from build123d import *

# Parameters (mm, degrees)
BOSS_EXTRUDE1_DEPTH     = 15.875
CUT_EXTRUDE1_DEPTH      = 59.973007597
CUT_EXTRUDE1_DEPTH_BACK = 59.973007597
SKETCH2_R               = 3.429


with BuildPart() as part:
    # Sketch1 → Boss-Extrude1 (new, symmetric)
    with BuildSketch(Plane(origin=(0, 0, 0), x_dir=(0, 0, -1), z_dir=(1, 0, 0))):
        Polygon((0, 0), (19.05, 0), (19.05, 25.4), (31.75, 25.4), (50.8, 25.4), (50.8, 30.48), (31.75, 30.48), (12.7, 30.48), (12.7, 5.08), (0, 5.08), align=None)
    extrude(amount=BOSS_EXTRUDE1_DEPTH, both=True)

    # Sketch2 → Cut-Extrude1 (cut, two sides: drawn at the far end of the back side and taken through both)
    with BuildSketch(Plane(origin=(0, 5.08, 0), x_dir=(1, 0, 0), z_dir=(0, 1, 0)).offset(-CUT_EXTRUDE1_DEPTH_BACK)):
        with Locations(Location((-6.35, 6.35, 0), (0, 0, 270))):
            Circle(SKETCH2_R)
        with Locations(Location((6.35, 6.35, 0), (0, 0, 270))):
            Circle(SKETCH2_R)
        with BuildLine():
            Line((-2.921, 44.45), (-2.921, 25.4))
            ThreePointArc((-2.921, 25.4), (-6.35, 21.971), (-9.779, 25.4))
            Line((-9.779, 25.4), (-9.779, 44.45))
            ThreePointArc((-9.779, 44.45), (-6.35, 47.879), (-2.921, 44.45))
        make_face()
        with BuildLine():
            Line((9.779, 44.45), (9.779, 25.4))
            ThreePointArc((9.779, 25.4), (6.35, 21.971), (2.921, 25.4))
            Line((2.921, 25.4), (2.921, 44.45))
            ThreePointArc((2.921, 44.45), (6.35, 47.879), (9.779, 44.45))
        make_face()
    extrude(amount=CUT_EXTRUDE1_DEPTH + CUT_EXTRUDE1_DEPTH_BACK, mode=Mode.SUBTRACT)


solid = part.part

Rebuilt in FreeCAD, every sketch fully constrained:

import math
import FreeCAD as App
import Part
import Sketcher

V = App.Vector
Q = App.Units.Quantity


def add_polygon(sketch, points):
    """Adds a closed chain of lines whose ends are joined by coincident constraints."""
    first, n = sketch.GeometryCount, len(points)
    for a, b in zip(points, points[1:] + points[:1]):
        sketch.addGeometry(Part.LineSegment(App.Vector(*a, 0), App.Vector(*b, 0)), False)
    for i in range(n):
        sketch.addConstraint(Sketcher.Constraint("Coincident", first + i, 2, first + (i + 1) % n, 1))

doc = App.newDocument("Part")
body = doc.addObject("PartDesign::Body", "Body")

# Sketch on YZ plane
sketch1 = body.newObject("Sketcher::SketchObject", "Sketch")
sketch1.AttachmentSupport = (doc.getObject("YZ_Plane"), [""])
sketch1.MapMode = "FlatFace"
add_polygon(sketch1, [(0, 0), (0, -19), (25, -19), (25, -51), (30, -51), (30, -13), (5, -13), (5, 0)])  # lines 0-7
sketch1.addConstraint([
    Sketcher.Constraint("Vertical", 0),
    Sketcher.Constraint("Horizontal", 1),
    Sketcher.Constraint("Vertical", 2),
    Sketcher.Constraint("Horizontal", 3),
    Sketcher.Constraint("Vertical", 4),
    Sketcher.Constraint("Horizontal", 5),
    Sketcher.Constraint("Vertical", 6),
    Sketcher.Constraint("Horizontal", 7),
    Sketcher.Constraint("Coincident", 7, 2, -1, 1),
    Sketcher.Constraint("Equal", 1, 5),
    Sketcher.Constraint("DistanceX", 1, 1, 1, 2, Q("1 in")),
    Sketcher.Constraint("DistanceX", 3, 1, 3, 2, Q("0.2 in")),
    Sketcher.Constraint("DistanceY", 4, 1, 4, 2, Q("1.5 in")),
    Sketcher.Constraint("DistanceY", 6, 1, 6, 2, Q("0.5 in")),
    Sketcher.Constraint("DistanceY", 0, 2, 0, 1, Q("0.75 in")),
])
pad1 = body.newObject("PartDesign::Pad", "Pad")
pad1.Profile = sketch1
pad1.Length = Q("1.25 in")
pad1.Midplane = True

# Sketch on XZ plane
sketch2 = body.newObject("Sketcher::SketchObject", "Sketch001")
sketch2.AttachmentSupport = (doc.getObject("XZ_Plane"), [""])
sketch2.MapMode = "FlatFace"
sketch2.AttachmentOffset = App.Placement(V(0, 0, -0.2 * 25.4), App.Rotation())
sketch2.addGeometry([
    Part.Circle(V(-6.3, -6.3, 0), V(0, 0, 1), 3.4),  # 0
    Part.Circle(V(6.3, -6.3, 0), V(0, 0, 1), 3.4),  # 1
    Part.LineSegment(V(-2.9, -25.4, 0), V(-2.9, -44.5, 0)),  # 2
    Part.ArcOfCircle(Part.Circle(V(-6.3, -44.5, 0), V(0, 0, 1), 3.4), math.radians(180), math.radians(360)),  # 3
    Part.LineSegment(V(-9.8, -44.5, 0), V(-9.8, -25.4, 0)),  # 4
    Part.ArcOfCircle(Part.Circle(V(-6.3, -25.4, 0), V(0, 0, 1), 3.4), math.radians(0), math.radians(180)),  # 5
    Part.LineSegment(V(9.8, -25.4, 0), V(9.8, -44.5, 0)),  # 6
    Part.ArcOfCircle(Part.Circle(V(6.3, -44.5, 0), V(0, 0, 1), 3.4), math.radians(180), math.radians(360)),  # 7
    Part.LineSegment(V(2.9, -44.5, 0), V(2.9, -25.4, 0)),  # 8
    Part.ArcOfCircle(Part.Circle(V(6.3, -25.4, 0), V(0, 0, 1), 3.4), math.radians(0), math.radians(180)),  # 9
], False)
sketch2.addConstraint([
    Sketcher.Constraint("Tangent", 2, 2, 3, 2),
    Sketcher.Constraint("Tangent", 3, 1, 4, 1),
    Sketcher.Constraint("Tangent", 4, 2, 5, 2),
    Sketcher.Constraint("Tangent", 5, 1, 2, 1),
    Sketcher.Constraint("Tangent", 6, 2, 7, 2),
    Sketcher.Constraint("Tangent", 7, 1, 8, 1),
    Sketcher.Constraint("Tangent", 8, 2, 9, 2),
    Sketcher.Constraint("Tangent", 9, 1, 6, 1),
    Sketcher.Constraint("Vertical", 2),
    Sketcher.Constraint("Vertical", 4),
    Sketcher.Constraint("Vertical", 6),
    Sketcher.Constraint("Vertical", 8),
    Sketcher.Constraint("Equal", 0, 1),
    Sketcher.Constraint("Equal", 1, 3),
    Sketcher.Constraint("Equal", 5, 7),
    Sketcher.Constraint("Symmetric", 0, 3, 1, 3, -2),
    Sketcher.Constraint("Symmetric", 3, 3, 7, 3, -2),
    Sketcher.Constraint("Horizontal", 5, 3, 9, 3),
    Sketcher.Constraint("Vertical", 0, 3, 3, 3),
    Sketcher.Constraint("Diameter", 0, Q("0.27 in")),
    Sketcher.Constraint("DistanceY", 5, 3, -1, 1, Q("1 in")),
    Sketcher.Constraint("DistanceY", 2, 2, 2, 1, Q("0.75 in")),
    Sketcher.Constraint("DistanceX", 0, 3, 1, 3, Q("0.5 in")),
    Sketcher.Constraint("DistanceY", 3, 3, 0, 3, Q("1.5 in")),
])
pocket1 = body.newObject("PartDesign::Pocket", "Pocket")
pocket1.Profile = sketch2
pocket1.Type = "ThroughAll"
pocket1.Midplane = True

doc.recompute()
